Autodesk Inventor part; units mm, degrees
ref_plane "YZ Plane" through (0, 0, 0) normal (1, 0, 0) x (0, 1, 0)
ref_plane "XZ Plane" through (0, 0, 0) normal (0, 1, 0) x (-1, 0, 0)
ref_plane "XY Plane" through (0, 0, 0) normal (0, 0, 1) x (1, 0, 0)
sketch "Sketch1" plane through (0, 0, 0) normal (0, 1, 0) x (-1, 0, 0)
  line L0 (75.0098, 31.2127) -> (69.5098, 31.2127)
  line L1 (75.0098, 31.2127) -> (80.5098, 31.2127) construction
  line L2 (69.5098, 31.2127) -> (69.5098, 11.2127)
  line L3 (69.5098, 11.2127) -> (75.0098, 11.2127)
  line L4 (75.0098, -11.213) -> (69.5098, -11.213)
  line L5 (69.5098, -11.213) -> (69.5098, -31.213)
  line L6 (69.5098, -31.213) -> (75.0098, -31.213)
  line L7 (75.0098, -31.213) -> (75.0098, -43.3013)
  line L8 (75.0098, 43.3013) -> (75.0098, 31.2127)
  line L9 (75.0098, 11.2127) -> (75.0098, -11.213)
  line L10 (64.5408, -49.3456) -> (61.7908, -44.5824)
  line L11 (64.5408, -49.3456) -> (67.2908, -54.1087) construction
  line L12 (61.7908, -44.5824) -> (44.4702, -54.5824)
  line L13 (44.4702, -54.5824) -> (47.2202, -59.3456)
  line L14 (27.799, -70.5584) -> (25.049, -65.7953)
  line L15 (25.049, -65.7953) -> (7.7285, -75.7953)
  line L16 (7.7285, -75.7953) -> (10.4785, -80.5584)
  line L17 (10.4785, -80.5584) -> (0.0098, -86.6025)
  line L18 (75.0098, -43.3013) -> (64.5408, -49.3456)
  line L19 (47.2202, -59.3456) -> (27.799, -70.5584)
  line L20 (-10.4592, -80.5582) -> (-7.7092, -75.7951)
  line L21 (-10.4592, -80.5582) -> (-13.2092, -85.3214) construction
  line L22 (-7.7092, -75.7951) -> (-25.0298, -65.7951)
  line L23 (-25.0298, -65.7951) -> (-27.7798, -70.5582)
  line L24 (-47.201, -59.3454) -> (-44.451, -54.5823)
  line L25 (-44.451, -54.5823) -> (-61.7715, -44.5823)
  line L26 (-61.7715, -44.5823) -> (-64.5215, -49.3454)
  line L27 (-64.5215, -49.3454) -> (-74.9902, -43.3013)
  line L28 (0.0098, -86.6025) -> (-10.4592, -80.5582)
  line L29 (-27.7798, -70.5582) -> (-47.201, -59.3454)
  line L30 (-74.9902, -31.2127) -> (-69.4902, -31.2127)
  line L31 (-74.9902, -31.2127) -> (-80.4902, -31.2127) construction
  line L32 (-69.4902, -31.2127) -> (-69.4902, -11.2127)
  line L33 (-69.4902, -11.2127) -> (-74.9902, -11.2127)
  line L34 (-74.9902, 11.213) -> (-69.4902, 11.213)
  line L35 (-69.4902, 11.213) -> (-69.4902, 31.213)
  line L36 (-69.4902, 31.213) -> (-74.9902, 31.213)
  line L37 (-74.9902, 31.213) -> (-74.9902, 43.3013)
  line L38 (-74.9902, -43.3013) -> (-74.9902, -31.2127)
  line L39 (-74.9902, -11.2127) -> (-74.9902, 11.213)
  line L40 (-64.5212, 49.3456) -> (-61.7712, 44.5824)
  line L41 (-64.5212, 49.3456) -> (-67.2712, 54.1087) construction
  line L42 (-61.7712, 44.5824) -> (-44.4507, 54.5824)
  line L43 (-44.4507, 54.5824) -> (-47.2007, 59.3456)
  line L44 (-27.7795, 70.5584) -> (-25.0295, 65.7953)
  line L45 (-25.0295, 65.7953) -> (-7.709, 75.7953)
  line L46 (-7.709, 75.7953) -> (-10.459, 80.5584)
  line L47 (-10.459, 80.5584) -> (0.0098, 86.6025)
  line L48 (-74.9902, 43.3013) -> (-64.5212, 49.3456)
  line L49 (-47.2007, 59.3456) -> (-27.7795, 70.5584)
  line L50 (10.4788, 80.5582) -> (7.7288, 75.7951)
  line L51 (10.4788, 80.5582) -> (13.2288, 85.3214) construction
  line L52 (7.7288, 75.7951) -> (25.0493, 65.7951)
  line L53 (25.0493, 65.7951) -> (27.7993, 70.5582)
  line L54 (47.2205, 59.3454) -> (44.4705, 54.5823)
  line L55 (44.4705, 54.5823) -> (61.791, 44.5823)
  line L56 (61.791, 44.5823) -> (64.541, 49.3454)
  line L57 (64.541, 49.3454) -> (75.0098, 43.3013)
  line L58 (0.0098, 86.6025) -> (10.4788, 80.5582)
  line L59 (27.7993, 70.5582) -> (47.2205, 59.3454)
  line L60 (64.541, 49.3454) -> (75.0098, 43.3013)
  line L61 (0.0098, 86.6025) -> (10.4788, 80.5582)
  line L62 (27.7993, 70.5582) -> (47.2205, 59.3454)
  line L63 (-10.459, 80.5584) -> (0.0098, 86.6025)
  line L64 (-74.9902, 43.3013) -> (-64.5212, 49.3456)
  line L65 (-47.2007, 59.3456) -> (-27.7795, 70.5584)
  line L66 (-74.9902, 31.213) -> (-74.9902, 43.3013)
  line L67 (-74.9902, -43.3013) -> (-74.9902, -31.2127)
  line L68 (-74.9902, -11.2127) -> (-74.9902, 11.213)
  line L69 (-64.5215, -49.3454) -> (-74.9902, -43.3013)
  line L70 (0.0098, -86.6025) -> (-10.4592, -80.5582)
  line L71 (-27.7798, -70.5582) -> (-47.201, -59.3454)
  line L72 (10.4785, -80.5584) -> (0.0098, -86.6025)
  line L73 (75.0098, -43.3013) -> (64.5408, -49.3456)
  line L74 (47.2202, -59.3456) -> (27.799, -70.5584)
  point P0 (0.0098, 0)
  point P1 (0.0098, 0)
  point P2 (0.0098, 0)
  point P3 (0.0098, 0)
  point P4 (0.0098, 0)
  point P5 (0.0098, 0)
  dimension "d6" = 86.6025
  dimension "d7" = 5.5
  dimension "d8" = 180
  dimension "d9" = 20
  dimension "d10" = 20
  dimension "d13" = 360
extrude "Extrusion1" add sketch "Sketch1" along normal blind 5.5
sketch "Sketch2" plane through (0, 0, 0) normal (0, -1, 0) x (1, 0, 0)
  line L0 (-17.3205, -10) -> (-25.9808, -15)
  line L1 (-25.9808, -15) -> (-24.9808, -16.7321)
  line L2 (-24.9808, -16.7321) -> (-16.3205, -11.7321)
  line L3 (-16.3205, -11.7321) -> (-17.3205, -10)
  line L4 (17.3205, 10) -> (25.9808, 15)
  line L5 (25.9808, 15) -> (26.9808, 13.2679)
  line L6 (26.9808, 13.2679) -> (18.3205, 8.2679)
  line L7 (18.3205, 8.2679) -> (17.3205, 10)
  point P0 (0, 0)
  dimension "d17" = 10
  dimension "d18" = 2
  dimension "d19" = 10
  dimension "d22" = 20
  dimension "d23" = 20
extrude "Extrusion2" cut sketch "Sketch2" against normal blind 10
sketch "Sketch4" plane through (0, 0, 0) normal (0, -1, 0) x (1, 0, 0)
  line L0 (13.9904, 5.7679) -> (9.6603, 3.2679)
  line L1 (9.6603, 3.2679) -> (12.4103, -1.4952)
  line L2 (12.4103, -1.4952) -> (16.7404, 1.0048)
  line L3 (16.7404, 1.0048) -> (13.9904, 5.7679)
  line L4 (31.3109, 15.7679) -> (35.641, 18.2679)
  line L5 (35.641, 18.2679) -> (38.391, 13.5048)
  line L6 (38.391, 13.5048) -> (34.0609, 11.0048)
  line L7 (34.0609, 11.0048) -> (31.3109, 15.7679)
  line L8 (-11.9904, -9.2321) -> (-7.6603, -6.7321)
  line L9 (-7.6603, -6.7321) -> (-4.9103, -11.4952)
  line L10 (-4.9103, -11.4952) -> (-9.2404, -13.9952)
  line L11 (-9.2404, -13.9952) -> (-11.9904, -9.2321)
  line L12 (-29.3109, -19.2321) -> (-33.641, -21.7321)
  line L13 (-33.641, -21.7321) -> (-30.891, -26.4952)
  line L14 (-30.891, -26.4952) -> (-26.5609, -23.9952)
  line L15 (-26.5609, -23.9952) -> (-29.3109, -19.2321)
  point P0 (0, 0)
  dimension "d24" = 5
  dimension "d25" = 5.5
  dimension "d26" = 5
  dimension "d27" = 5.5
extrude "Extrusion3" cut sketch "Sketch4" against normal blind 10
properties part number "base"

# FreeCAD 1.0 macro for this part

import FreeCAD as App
import Part
import Sketcher
Q = App.Units.Quantity

doc = App.newDocument("Part")
params = doc.addObject("Spreadsheet::Sheet", "Params")
for row, (alias, value) in enumerate([
    ("sketch1_height", "20 mm"),
    ("sketch1_length", "20 mm"),
    ("sketch1_width", "5.5 mm"),
    ("sketch1_length2", "5.5 mm"),
    ("pad1_length", "5.5 mm"),
    ("sketch2_length", "2 mm"),
    ("sketch2_length2", "10 mm"),
    ("pocket1_length", "10 mm"),
    ("sketch3_length", "5 mm"),
    ("sketch3_length2", "5.5 mm"),
    ("pocket2_length", "10 mm"),
], start=1):
    params.set(f"A{row}", alias)
    params.set(f"B{row}", "=" + value)
    params.setAlias(f"B{row}", alias)

body = doc.addObject("PartDesign::Body", "Body")

# Sketch on XZ plane
sketch1 = body.newObject("Sketcher::SketchObject", "Sketch")
sketch1.AttachmentSupport = (doc.getObject("XZ_Plane"), [""])
sketch1.MapMode = "FlatFace"
sketch1.addGeometry([
    Part.LineSegment(App.Vector(-70, 31, 0), App.Vector(-75, 31, 0)),  # 0
    Part.LineSegment(App.Vector(-75, 31, 0), App.Vector(-75, 43, 0)),  # 1
    Part.LineSegment(App.Vector(-75, 43, 0), App.Vector(-65, 49, 0)),  # 2
    Part.LineSegment(App.Vector(-65, 49, 0), App.Vector(-62, 45, 0)),  # 3
    Part.LineSegment(App.Vector(-62, 45, 0), App.Vector(-44, 55, 0)),  # 4
    Part.LineSegment(App.Vector(-44, 55, 0), App.Vector(-47, 59, 0)),  # 5
    Part.LineSegment(App.Vector(-47, 59, 0), App.Vector(-28, 71, 0)),  # 6
    Part.LineSegment(App.Vector(-28, 71, 0), App.Vector(-25, 66, 0)),  # 7
    Part.LineSegment(App.Vector(-25, 66, 0), App.Vector(-8, 76, 0)),  # 8
    Part.LineSegment(App.Vector(-8, 76, 0), App.Vector(-10, 81, 0)),  # 9
    Part.LineSegment(App.Vector(-10, 81, 0), App.Vector(0, 87, 0)),  # 10
    Part.LineSegment(App.Vector(0, 87, 0), App.Vector(10, 81, 0)),  # 11
    Part.LineSegment(App.Vector(10, 81, 0), App.Vector(8, 76, 0)),  # 12
    Part.LineSegment(App.Vector(8, 76, 0), App.Vector(25, 66, 0)),  # 13
    Part.LineSegment(App.Vector(25, 66, 0), App.Vector(28, 71, 0)),  # 14
    Part.LineSegment(App.Vector(28, 71, 0), App.Vector(47, 59, 0)),  # 15
    Part.LineSegment(App.Vector(47, 59, 0), App.Vector(44, 55, 0)),  # 16
    Part.LineSegment(App.Vector(44, 55, 0), App.Vector(62, 45, 0)),  # 17
    Part.LineSegment(App.Vector(62, 45, 0), App.Vector(65, 49, 0)),  # 18
    Part.LineSegment(App.Vector(65, 49, 0), App.Vector(75, 43, 0)),  # 19
    Part.LineSegment(App.Vector(75, 43, 0), App.Vector(75, 31, 0)),  # 20
    Part.LineSegment(App.Vector(75, 31, 0), App.Vector(69, 31, 0)),  # 21
    Part.LineSegment(App.Vector(69, 31, 0), App.Vector(69, 11, 0)),  # 22
    Part.LineSegment(App.Vector(69, 11, 0), App.Vector(75, 11, 0)),  # 23
    Part.LineSegment(App.Vector(75, 11, 0), App.Vector(75, -11, 0)),  # 24
    Part.LineSegment(App.Vector(75, -11, 0), App.Vector(69, -11, 0)),  # 25
    Part.LineSegment(App.Vector(69, -11, 0), App.Vector(69, -31, 0)),  # 26
    Part.LineSegment(App.Vector(69, -31, 0), App.Vector(75, -31, 0)),  # 27
    Part.LineSegment(App.Vector(75, -31, 0), App.Vector(75, -43, 0)),  # 28
    Part.LineSegment(App.Vector(75, -43, 0), App.Vector(65, -49, 0)),  # 29
    Part.LineSegment(App.Vector(65, -49, 0), App.Vector(62, -45, 0)),  # 30
    Part.LineSegment(App.Vector(62, -45, 0), App.Vector(44, -55, 0)),  # 31
    Part.LineSegment(App.Vector(44, -55, 0), App.Vector(47, -59, 0)),  # 32
    Part.LineSegment(App.Vector(47, -59, 0), App.Vector(28, -71, 0)),  # 33
    Part.LineSegment(App.Vector(28, -71, 0), App.Vector(25, -66, 0)),  # 34
    Part.LineSegment(App.Vector(25, -66, 0), App.Vector(8, -76, 0)),  # 35
    Part.LineSegment(App.Vector(8, -76, 0), App.Vector(10, -81, 0)),  # 36
    Part.LineSegment(App.Vector(10, -81, 0), App.Vector(0, -87, 0)),  # 37
    Part.LineSegment(App.Vector(0, -87, 0), App.Vector(-10, -81, 0)),  # 38
    Part.LineSegment(App.Vector(-10, -81, 0), App.Vector(-8, -76, 0)),  # 39
    Part.LineSegment(App.Vector(-8, -76, 0), App.Vector(-25, -66, 0)),  # 40
    Part.LineSegment(App.Vector(-25, -66, 0), App.Vector(-28, -71, 0)),  # 41
    Part.LineSegment(App.Vector(-28, -71, 0), App.Vector(-47, -59, 0)),  # 42
    Part.LineSegment(App.Vector(-47, -59, 0), App.Vector(-44, -55, 0)),  # 43
    Part.LineSegment(App.Vector(-44, -55, 0), App.Vector(-62, -45, 0)),  # 44
    Part.LineSegment(App.Vector(-62, -45, 0), App.Vector(-65, -49, 0)),  # 45
    Part.LineSegment(App.Vector(-65, -49, 0), App.Vector(-75, -43, 0)),  # 46
    Part.LineSegment(App.Vector(-75, -43, 0), App.Vector(-75, -31, 0)),  # 47
    Part.LineSegment(App.Vector(-75, -31, 0), App.Vector(-70, -31, 0)),  # 48
    Part.LineSegment(App.Vector(-70, -31, 0), App.Vector(-70, -11, 0)),  # 49
    Part.LineSegment(App.Vector(-70, -11, 0), App.Vector(-75, -11, 0)),  # 50
    Part.LineSegment(App.Vector(-75, -11, 0), App.Vector(-75, 11, 0)),  # 51
    Part.LineSegment(App.Vector(-75, 11, 0), App.Vector(-70, 11, 0)),  # 52
    Part.LineSegment(App.Vector(-70, 11, 0), App.Vector(-70, 31, 0)),  # 53
], False)
sketch1.addConstraint([
    Sketcher.Constraint("Coincident", 0, 2, 1, 1),
    Sketcher.Constraint("Coincident", 1, 2, 2, 1),
    Sketcher.Constraint("Coincident", 2, 2, 3, 1),
    Sketcher.Constraint("Coincident", 3, 2, 4, 1),
    Sketcher.Constraint("Coincident", 4, 2, 5, 1),
    Sketcher.Constraint("Coincident", 5, 2, 6, 1),
    Sketcher.Constraint("Coincident", 6, 2, 7, 1),
    Sketcher.Constraint("Coincident", 7, 2, 8, 1),
    Sketcher.Constraint("Coincident", 8, 2, 9, 1),
    Sketcher.Constraint("Coincident", 9, 2, 10, 1),
    Sketcher.Constraint("Coincident", 10, 2, 11, 1),
    Sketcher.Constraint("Coincident", 11, 2, 12, 1),
    Sketcher.Constraint("Coincident", 12, 2, 13, 1),
    Sketcher.Constraint("Coincident", 13, 2, 14, 1),
    Sketcher.Constraint("Coincident", 14, 2, 15, 1),
    Sketcher.Constraint("Coincident", 15, 2, 16, 1),
    Sketcher.Constraint("Coincident", 16, 2, 17, 1),
    Sketcher.Constraint("Coincident", 17, 2, 18, 1),
    Sketcher.Constraint("Coincident", 18, 2, 19, 1),
    Sketcher.Constraint("Coincident", 19, 2, 20, 1),
    Sketcher.Constraint("Coincident", 20, 2, 21, 1),
    Sketcher.Constraint("Coincident", 21, 2, 22, 1),
    Sketcher.Constraint("Coincident", 22, 2, 23, 1),
    Sketcher.Constraint("Coincident", 23, 2, 24, 1),
    Sketcher.Constraint("Coincident", 24, 2, 25, 1),
    Sketcher.Constraint("Coincident", 25, 2, 26, 1),
    Sketcher.Constraint("Coincident", 26, 2, 27, 1),
    Sketcher.Constraint("Coincident", 27, 2, 28, 1),
    Sketcher.Constraint("Coincident", 28, 2, 29, 1),
    Sketcher.Constraint("Coincident", 29, 2, 30, 1),
    Sketcher.Constraint("Coincident", 30, 2, 31, 1),
    Sketcher.Constraint("Coincident", 31, 2, 32, 1),
    Sketcher.Constraint("Coincident", 32, 2, 33, 1),
    Sketcher.Constraint("Coincident", 33, 2, 34, 1),
    Sketcher.Constraint("Coincident", 34, 2, 35, 1),
    Sketcher.Constraint("Coincident", 35, 2, 36, 1),
    Sketcher.Constraint("Coincident", 36, 2, 37, 1),
    Sketcher.Constraint("Coincident", 37, 2, 38, 1),
    Sketcher.Constraint("Coincident", 38, 2, 39, 1),
    Sketcher.Constraint("Coincident", 39, 2, 40, 1),
    Sketcher.Constraint("Coincident", 40, 2, 41, 1),
    Sketcher.Constraint("Coincident", 41, 2, 42, 1),
    Sketcher.Constraint("Coincident", 42, 2, 43, 1),
    Sketcher.Constraint("Coincident", 43, 2, 44, 1),
    Sketcher.Constraint("Coincident", 44, 2, 45, 1),
    Sketcher.Constraint("Coincident", 45, 2, 46, 1),
    Sketcher.Constraint("Coincident", 46, 2, 47, 1),
    Sketcher.Constraint("Coincident", 47, 2, 48, 1),
    Sketcher.Constraint("Coincident", 48, 2, 49, 1),
    Sketcher.Constraint("Coincident", 49, 2, 50, 1),
    Sketcher.Constraint("Coincident", 50, 2, 51, 1),
    Sketcher.Constraint("Coincident", 51, 2, 52, 1),
    Sketcher.Constraint("Coincident", 52, 2, 53, 1),
    Sketcher.Constraint("Coincident", 53, 2, 0, 1),
    Sketcher.Constraint("Horizontal", 0),
    Sketcher.Constraint("Vertical", 1),
    Sketcher.Constraint("Vertical", 20),
    Sketcher.Constraint("Horizontal", 21),
    Sketcher.Constraint("Vertical", 22),
    Sketcher.Constraint("Horizontal", 23),
    Sketcher.Constraint("Vertical", 24),
    Sketcher.Constraint("Horizontal", 25),
    Sketcher.Constraint("Vertical", 26),
    Sketcher.Constraint("Horizontal", 27),
    Sketcher.Constraint("Vertical", 28),
    Sketcher.Constraint("Vertical", 47),
    Sketcher.Constraint("Horizontal", 48),
    Sketcher.Constraint("Vertical", 49),
    Sketcher.Constraint("Horizontal", 50),
    Sketcher.Constraint("Vertical", 51),
    Sketcher.Constraint("Horizontal", 52),
    Sketcher.Constraint("Vertical", 53),
    Sketcher.Constraint("Symmetric", 22, 2, 25, 2, -1),
    Sketcher.Constraint("Symmetric", 20, 2, 27, 2, -1),
    Sketcher.Constraint("Symmetric", 18, 2, 29, 2, -1),
    Sketcher.Constraint("Symmetric", 17, 2, 30, 2, -1),
    Sketcher.Constraint("Symmetric", 16, 2, 31, 2, -1),
    Sketcher.Constraint("Symmetric", 15, 2, 32, 2, -1),
    Sketcher.Constraint("Symmetric", 14, 2, 33, 2, -1),
    Sketcher.Constraint("Symmetric", 13, 2, 34, 2, -1),
    Sketcher.Constraint("Symmetric", 12, 2, 35, 2, -1),
    Sketcher.Constraint("Symmetric", 11, 2, 36, 2, -1),
    Sketcher.Constraint("Symmetric", 10, 2, 37, 2, -1),
    Sketcher.Constraint("Symmetric", 9, 2, 38, 2, -1),
    Sketcher.Constraint("Symmetric", 8, 2, 39, 2, -1),
    Sketcher.Constraint("Symmetric", 7, 2, 40, 2, -1),
    Sketcher.Constraint("Symmetric", 6, 2, 41, 2, -1),
    Sketcher.Constraint("Symmetric", 5, 2, 42, 2, -1),
    Sketcher.Constraint("Symmetric", 4, 2, 43, 2, -1),
    Sketcher.Constraint("Symmetric", 3, 2, 44, 2, -1),
    Sketcher.Constraint("Symmetric", 2, 2, 45, 2, -1),
    Sketcher.Constraint("Symmetric", 1, 2, 46, 2, -1),
    Sketcher.Constraint("Symmetric", 49, 2, 52, 2, -1),
    Sketcher.Constraint("Perpendicular", 2, 3),
    Sketcher.Constraint("Perpendicular", 3, 4),
    Sketcher.Constraint("Perpendicular", 4, 5),
    Sketcher.Constraint("Perpendicular", 5, 6),
    Sketcher.Constraint("Perpendicular", 6, 7),
    Sketcher.Constraint("Perpendicular", 7, 8),
    Sketcher.Constraint("Perpendicular", 8, 9),
    Sketcher.Constraint("Perpendicular", 9, 10),
    Sketcher.Constraint("Perpendicular", 11, 12),
    Sketcher.Constraint("Perpendicular", 12, 13),
    Sketcher.Constraint("Perpendicular", 13, 14),
    Sketcher.Constraint("Perpendicular", 14, 15),
    Sketcher.Constraint("Perpendicular", 15, 16),
    Sketcher.Constraint("Perpendicular", 16, 17),
    Sketcher.Constraint("Perpendicular", 17, 18),
    Sketcher.Constraint("Perpendicular", 18, 19),
    Sketcher.Constraint("Parallel", 10, 29),
    Sketcher.Constraint("Perpendicular", 29, 30),
    Sketcher.Constraint("Horizontal", 8, 2, 12, 2),
    Sketcher.Constraint("Horizontal", 7, 2, 13, 2),
    Sketcher.Constraint("Horizontal", 5, 2, 15, 2),
    Sketcher.Constraint("Horizontal", 4, 2, 16, 2),
    Sketcher.Constraint("Horizontal", 3, 2, 17, 2),
    Sketcher.Constraint("Horizontal", 2, 2, 18, 2),
    Sketcher.Constraint("Horizontal", 1, 2, 19, 2),
    Sketcher.Constraint("Vertical", 20, 2, 23, 2),
    Sketcher.Constraint("Vertical", 47, 2, 50, 2),
    Sketcher.Constraint("Equal", 0, 21),
    Sketcher.Constraint("Equal", 1, 28),
    Sketcher.Constraint("Equal", 20, 47),
    Sketcher.Constraint("Equal", 26, 49),
    Sketcher.Constraint("Equal", 3, 5),
    Sketcher.Constraint("Equal", 5, 7),
    Sketcher.Constraint("Equal", 4, 8),
    Sketcher.Constraint("Equal", 7, 9),
    Sketcher.Constraint("Equal", 2, 11),
    Sketcher.Constraint("Equal", 9, 12),
    Sketcher.Constraint("Equal", 12, 14),
    Sketcher.Constraint("DistanceY", 22, 2, 22, 1, 20.0),
    Sketcher.Constraint("Distance", 4, 20.0),
    Sketcher.Constraint("DistanceX", 0, 2, 0, 1, 5.5),
    Sketcher.Constraint("Distance", 3, 5.5),
    Sketcher.Constraint("Angle", 2, Q("29.9997 deg")),
    Sketcher.Constraint("DistanceY", -1, 1, 10, 2, 86.6025),
    Sketcher.Constraint("DistanceY", 1, 1, 1, 2, 12.0886),
    Sketcher.Constraint("DistanceY", 24, 2, 24, 1, 22.4257),
    Sketcher.Constraint("DistanceX", 2, 2, -1, 1, 64.541),
    Sketcher.Constraint("DistanceY", -1, 1, 7, 2, 65.795),
])
sketch1.setExpression("Constraints[131]", "Params.sketch1_height")
sketch1.setExpression("Constraints[132]", "Params.sketch1_length")
sketch1.setExpression("Constraints[133]", "Params.sketch1_width")
sketch1.setExpression("Constraints[134]", "Params.sketch1_length2")
pad1 = body.newObject("PartDesign::Pad", "Pad")
pad1.Profile = sketch1
pad1.setExpression("Length", "Params.pad1_length")
pad1.Reversed = True

# Sketch on XZ plane
sketch2 = body.newObject("Sketcher::SketchObject", "Sketch001")
sketch2.AttachmentSupport = (doc.getObject("XZ_Plane"), [""])
sketch2.MapMode = "FlatFace"
sketch2.addGeometry([
    Part.LineSegment(App.Vector(-16.3, -11.7, 0), App.Vector(-17.3, -10, 0)),  # 0
    Part.LineSegment(App.Vector(-17.3, -10, 0), App.Vector(-26, -15, 0)),  # 1
    Part.LineSegment(App.Vector(-26, -15, 0), App.Vector(-25, -16.7, 0)),  # 2
    Part.LineSegment(App.Vector(-25, -16.7, 0), App.Vector(-16.3, -11.7, 0)),  # 3
    Part.LineSegment(App.Vector(26, 15, 0), App.Vector(17.3, 10, 0)),  # 4
    Part.LineSegment(App.Vector(17.3, 10, 0), App.Vector(18.3, 8.3, 0)),  # 5
    Part.LineSegment(App.Vector(18.3, 8.3, 0), App.Vector(27, 13.3, 0)),  # 6
    Part.LineSegment(App.Vector(27, 13.3, 0), App.Vector(26, 15, 0)),  # 7
], False)
sketch2.addConstraint([
    Sketcher.Constraint("Coincident", 0, 2, 1, 1),
    Sketcher.Constraint("Coincident", 1, 2, 2, 1),
    Sketcher.Constraint("Coincident", 2, 2, 3, 1),
    Sketcher.Constraint("Coincident", 3, 2, 0, 1),
    Sketcher.Constraint("Coincident", 4, 2, 5, 1),
    Sketcher.Constraint("Coincident", 5, 2, 6, 1),
    Sketcher.Constraint("Coincident", 6, 2, 7, 1),
    Sketcher.Constraint("Coincident", 7, 2, 4, 1),
    Sketcher.Constraint("Symmetric", 0, 2, 4, 2, -1, 1),
    Sketcher.Constraint("Symmetric", 1, 2, 7, 2, -1, 1),
    Sketcher.Constraint("Perpendicular", 0, 1),
    Sketcher.Constraint("Perpendicular", 1, 2),
    Sketcher.Constraint("Perpendicular", 2, 3),
    Sketcher.Constraint("Perpendicular", 4, 5),
    Sketcher.Constraint("Perpendicular", 5, 6),
    Sketcher.Constraint("Perpendicular", 6, 7),
    Sketcher.Constraint("Equal", 2, 5),
    Sketcher.Constraint("Distance", 0, 2.0),
    Sketcher.Constraint("Distance", 1, 10.0),
    Sketcher.Constraint("DistanceY", 0, 2, -1, 1, 10.0),
    Sketcher.Constraint("Angle", 0, Q("119.9993 deg")),
    Sketcher.Constraint("DistanceX", 0, 2, 4, 2, 34.641),
])
sketch2.setExpression("Constraints[17]", "Params.sketch2_length")
sketch2.setExpression("Constraints[18]", "Params.sketch2_length2")
pocket1 = body.newObject("PartDesign::Pocket", "Pocket")
pocket1.Profile = sketch2
pocket1.setExpression("Length", "Params.pocket1_length")

# Sketch on XZ plane
sketch3 = body.newObject("Sketcher::SketchObject", "Sketch002")
sketch3.AttachmentSupport = (doc.getObject("XZ_Plane"), [""])
sketch3.MapMode = "FlatFace"
sketch3.addGeometry([
    Part.LineSegment(App.Vector(16.7, 1, 0), App.Vector(14, 5.8, 0)),  # 0
    Part.LineSegment(App.Vector(14, 5.8, 0), App.Vector(9.7, 3.3, 0)),  # 1
    Part.LineSegment(App.Vector(9.7, 3.3, 0), App.Vector(12.4, -1.5, 0)),  # 2
    Part.LineSegment(App.Vector(12.4, -1.5, 0), App.Vector(16.7, 1, 0)),  # 3
    Part.LineSegment(App.Vector(35.6, 18.3, 0), App.Vector(31.3, 15.8, 0)),  # 4
    Part.LineSegment(App.Vector(31.3, 15.8, 0), App.Vector(34.1, 11, 0)),  # 5
    Part.LineSegment(App.Vector(34.1, 11, 0), App.Vector(38.4, 13.5, 0)),  # 6
    Part.LineSegment(App.Vector(38.4, 13.5, 0), App.Vector(35.6, 18.3, 0)),  # 7
    Part.LineSegment(App.Vector(-7.7, -6.7, 0), App.Vector(-12, -9.2, 0)),  # 8
    Part.LineSegment(App.Vector(-12, -9.2, 0), App.Vector(-9.2, -14, 0)),  # 9
    Part.LineSegment(App.Vector(-9.2, -14, 0), App.Vector(-4.9, -11.5, 0)),  # 10
    Part.LineSegment(App.Vector(-4.9, -11.5, 0), App.Vector(-7.7, -6.7, 0)),  # 11
    Part.LineSegment(App.Vector(-26.6, -24, 0), App.Vector(-29.3, -19.2, 0)),  # 12
    Part.LineSegment(App.Vector(-29.3, -19.2, 0), App.Vector(-33.6, -21.7, 0)),  # 13
    Part.LineSegment(App.Vector(-33.6, -21.7, 0), App.Vector(-30.9, -26.5, 0)),  # 14
    Part.LineSegment(App.Vector(-30.9, -26.5, 0), App.Vector(-26.6, -24, 0)),  # 15
], False)
sketch3.addConstraint([
    Sketcher.Constraint("Coincident", 0, 2, 1, 1),
    Sketcher.Constraint("Coincident", 1, 2, 2, 1),
    Sketcher.Constraint("Coincident", 2, 2, 3, 1),
    Sketcher.Constraint("Coincident", 3, 2, 0, 1),
    Sketcher.Constraint("Coincident", 4, 2, 5, 1),
    Sketcher.Constraint("Coincident", 5, 2, 6, 1),
    Sketcher.Constraint("Coincident", 6, 2, 7, 1),
    Sketcher.Constraint("Coincident", 7, 2, 4, 1),
    Sketcher.Constraint("Coincident", 8, 2, 9, 1),
    Sketcher.Constraint("Coincident", 9, 2, 10, 1),
    Sketcher.Constraint("Coincident", 10, 2, 11, 1),
    Sketcher.Constraint("Coincident", 11, 2, 8, 1),
    Sketcher.Constraint("Coincident", 12, 2, 13, 1),
    Sketcher.Constraint("Coincident", 13, 2, 14, 1),
    Sketcher.Constraint("Coincident", 14, 2, 15, 1),
    Sketcher.Constraint("Coincident", 15, 2, 12, 1),
    Sketcher.Constraint("Perpendicular", 0, 1),
    Sketcher.Constraint("Perpendicular", 1, 2),
    Sketcher.Constraint("Perpendicular", 2, 3),
    Sketcher.Constraint("Parallel", 3, 4),
    Sketcher.Constraint("Perpendicular", 4, 5),
    Sketcher.Constraint("Perpendicular", 5, 6),
    Sketcher.Constraint("Perpendicular", 6, 7),
    Sketcher.Constraint("Perpendicular", 7, 8),
    Sketcher.Constraint("Perpendicular", 8, 9),
    Sketcher.Constraint("Perpendicular", 9, 10),
    Sketcher.Constraint("Perpendicular", 10, 11),
    Sketcher.Constraint("Parallel", 11, 12),
    Sketcher.Constraint("Perpendicular", 12, 13),
    Sketcher.Constraint("Perpendicular", 13, 14),
    Sketcher.Constraint("Perpendicular", 14, 15),
    Sketcher.Constraint("Equal", 3, 4),
    Sketcher.Constraint("Equal", 2, 5),
    Sketcher.Constraint("Equal", 6, 8),
    Sketcher.Constraint("Equal", 7, 9),
    Sketcher.Constraint("Equal", 11, 12),
    Sketcher.Constraint("Equal", 10, 13),
    Sketcher.Constraint("Distance", 1, 5.0),
    Sketcher.Constraint("Distance", 0, 5.5),
    Sketcher.Constraint("Angle", 0, Q("120.0002 deg")),
    Sketcher.Constraint("DistanceY", 0, 2, 4, 2, 10.0),
    Sketcher.Constraint("DistanceY", 8, 2, 0, 2, 15.0),
    Sketcher.Constraint("DistanceY", 12, 2, 8, 2, 10.0),
    Sketcher.Constraint("DistanceY", -1, 1, 0, 2, 5.768),
    Sketcher.Constraint("DistanceX", -1, 1, 4, 2, 31.311),
    Sketcher.Constraint("DistanceX", 12, 2, -1, 1, 29.311),
    Sketcher.Constraint("DistanceX", -1, 1, 0, 2, 13.9904),
    Sketcher.Constraint("DistanceX", 8, 2, -1, 1, 11.9904),
])
sketch3.setExpression("Constraints[37]", "Params.sketch3_length")
sketch3.setExpression("Constraints[38]", "Params.sketch3_length2")
pocket2 = body.newObject("PartDesign::Pocket", "Pocket001")
pocket2.Profile = sketch3
pocket2.setExpression("Length", "Params.pocket2_length")

doc.recompute()
